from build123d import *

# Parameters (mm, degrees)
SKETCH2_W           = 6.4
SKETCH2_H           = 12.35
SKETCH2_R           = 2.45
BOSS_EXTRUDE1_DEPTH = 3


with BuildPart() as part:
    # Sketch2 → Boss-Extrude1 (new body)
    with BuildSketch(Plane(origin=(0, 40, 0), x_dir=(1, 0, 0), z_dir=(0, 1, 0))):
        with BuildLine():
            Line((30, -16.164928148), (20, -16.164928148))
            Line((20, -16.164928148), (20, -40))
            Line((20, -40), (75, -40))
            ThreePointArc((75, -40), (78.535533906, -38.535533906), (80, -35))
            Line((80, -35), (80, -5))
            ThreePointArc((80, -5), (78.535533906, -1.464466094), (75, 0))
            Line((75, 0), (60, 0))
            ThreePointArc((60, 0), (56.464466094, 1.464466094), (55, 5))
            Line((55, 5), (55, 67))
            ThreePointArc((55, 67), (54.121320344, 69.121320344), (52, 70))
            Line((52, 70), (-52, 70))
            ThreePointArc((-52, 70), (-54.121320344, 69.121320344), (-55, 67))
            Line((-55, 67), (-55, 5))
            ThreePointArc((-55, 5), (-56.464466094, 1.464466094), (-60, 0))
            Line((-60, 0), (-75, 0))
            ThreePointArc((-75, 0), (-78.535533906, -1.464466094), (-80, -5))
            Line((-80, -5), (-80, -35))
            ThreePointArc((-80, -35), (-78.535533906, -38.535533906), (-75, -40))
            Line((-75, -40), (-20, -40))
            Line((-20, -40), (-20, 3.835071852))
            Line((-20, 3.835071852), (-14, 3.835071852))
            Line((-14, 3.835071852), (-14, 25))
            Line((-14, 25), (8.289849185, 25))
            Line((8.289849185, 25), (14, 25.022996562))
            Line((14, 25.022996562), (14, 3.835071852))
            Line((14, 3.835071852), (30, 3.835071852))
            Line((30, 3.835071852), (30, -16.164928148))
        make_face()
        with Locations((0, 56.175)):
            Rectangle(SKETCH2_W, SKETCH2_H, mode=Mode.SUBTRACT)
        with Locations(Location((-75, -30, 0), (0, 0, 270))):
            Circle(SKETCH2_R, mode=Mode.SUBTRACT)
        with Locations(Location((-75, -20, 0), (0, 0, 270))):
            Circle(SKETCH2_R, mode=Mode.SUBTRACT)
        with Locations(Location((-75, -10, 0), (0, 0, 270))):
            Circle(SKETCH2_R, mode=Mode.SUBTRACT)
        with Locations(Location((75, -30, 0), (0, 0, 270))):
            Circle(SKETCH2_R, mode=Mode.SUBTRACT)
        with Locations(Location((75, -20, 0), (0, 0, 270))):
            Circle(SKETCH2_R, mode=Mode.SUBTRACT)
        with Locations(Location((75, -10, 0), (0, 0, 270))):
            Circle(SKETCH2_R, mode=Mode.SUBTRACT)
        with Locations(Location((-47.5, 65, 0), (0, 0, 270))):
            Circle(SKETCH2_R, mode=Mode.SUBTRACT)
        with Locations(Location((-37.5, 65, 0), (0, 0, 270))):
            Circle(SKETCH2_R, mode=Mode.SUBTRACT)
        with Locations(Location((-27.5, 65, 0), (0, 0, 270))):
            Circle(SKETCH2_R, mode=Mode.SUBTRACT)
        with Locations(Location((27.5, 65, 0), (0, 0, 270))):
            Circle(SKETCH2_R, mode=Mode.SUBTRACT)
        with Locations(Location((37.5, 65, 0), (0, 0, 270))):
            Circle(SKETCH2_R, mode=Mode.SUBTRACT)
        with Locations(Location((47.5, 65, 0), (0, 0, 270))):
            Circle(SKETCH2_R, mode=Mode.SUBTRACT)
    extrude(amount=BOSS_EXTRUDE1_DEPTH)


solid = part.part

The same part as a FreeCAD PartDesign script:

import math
import FreeCAD as App
import Part
import Sketcher

V = App.Vector


def add_polygon(sketch, points):
    """Adds a closed chain of lines whose ends are joined by coincident constraints."""
    first, n = sketch.GeometryCount, len(points)
    for a, b in zip(points, points[1:] + points[:1]):
        sketch.addGeometry(Part.LineSegment(App.Vector(*a, 0), App.Vector(*b, 0)), False)
    for i in range(n):
        sketch.addConstraint(Sketcher.Constraint("Coincident", first + i, 2, first + (i + 1) % n, 1))

doc = App.newDocument("Part")
body = doc.addObject("PartDesign::Body", "Body")

# Sketch on XZ plane
sketch1 = body.newObject("Sketcher::SketchObject", "Sketch")
sketch1.AttachmentSupport = (doc.getObject("XZ_Plane"), [""])
sketch1.MapMode = "FlatFace"
sketch1.AttachmentOffset = App.Placement(V(0, 0, -40), App.Rotation())
sketch1.addGeometry(Part.LineSegment(V(30, 16.164928, 0), V(20, 16.164928, 0)), False)  # 0
sketch1.addGeometry(Part.LineSegment(V(20, 16.164928, 0), V(20, 40, 0)), False)  # 1
sketch1.addGeometry(Part.LineSegment(V(20, 40, 0), V(75, 40, 0)), False)  # 2
sketch1.addGeometry(Part.ArcOfCircle(Part.Circle(V(75, 35, 0), V(0, 0, 1), 5), math.radians(0), math.radians(90)), False)  # 3
sketch1.addGeometry(Part.LineSegment(V(80, 35, 0), V(80, 5, 0)), False)  # 4
sketch1.addGeometry(Part.ArcOfCircle(Part.Circle(V(75, 5, 0), V(0, 0, 1), 5), math.radians(-90), math.radians(0)), False)  # 5
sketch1.addGeometry(Part.LineSegment(V(75, 0, 0), V(60, 0, 0)), False)  # 6
sketch1.addGeometry(Part.ArcOfCircle(Part.Circle(V(60, -5, 0), V(0, 0, 1), 5), math.radians(90), math.radians(180)), False)  # 7
sketch1.addGeometry(Part.LineSegment(V(55, -5, 0), V(55, -67, 0)), False)  # 8
sketch1.addGeometry(Part.ArcOfCircle(Part.Circle(V(52, -67, 0), V(0, 0, 1), 3), math.radians(-90), math.radians(0)), False)  # 9
sketch1.addGeometry(Part.LineSegment(V(52, -70, 0), V(-52, -70, 0)), False)  # 10
sketch1.addGeometry(Part.ArcOfCircle(Part.Circle(V(-52, -67, 0), V(0, 0, 1), 3), math.radians(180), math.radians(270)), False)  # 11
sketch1.addGeometry(Part.LineSegment(V(-55, -67, 0), V(-55, -5, 0)), False)  # 12
sketch1.addGeometry(Part.ArcOfCircle(Part.Circle(V(-60, -5, 0), V(0, 0, 1), 5), math.radians(0), math.radians(90)), False)  # 13
sketch1.addGeometry(Part.LineSegment(V(-60, 0, 0), V(-75, 0, 0)), False)  # 14
sketch1.addGeometry(Part.ArcOfCircle(Part.Circle(V(-75, 5, 0), V(0, 0, 1), 5), math.radians(180), math.radians(270)), False)  # 15
sketch1.addGeometry(Part.LineSegment(V(-80, 5, 0), V(-80, 35, 0)), False)  # 16
sketch1.addGeometry(Part.ArcOfCircle(Part.Circle(V(-75, 35, 0), V(0, 0, 1), 5), math.radians(90), math.radians(180)), False)  # 17
sketch1.addGeometry(Part.LineSegment(V(-75, 40, 0), V(-20, 40, 0)), False)  # 18
sketch1.addGeometry(Part.LineSegment(V(-20, 40, 0), V(-20, -3.835072, 0)), False)  # 19
sketch1.addGeometry(Part.LineSegment(V(-20, -3.835072, 0), V(-14, -3.835072, 0)), False)  # 20
sketch1.addGeometry(Part.LineSegment(V(-14, -3.835072, 0), V(-14, -25, 0)), False)  # 21
sketch1.addGeometry(Part.LineSegment(V(-14, -25, 0), V(8.289849, -25, 0)), False)  # 22
sketch1.addGeometry(Part.LineSegment(V(8.289849, -25, 0), V(14, -25.022997, 0)), False)  # 23
sketch1.addGeometry(Part.LineSegment(V(14, -25.022997, 0), V(14, -3.835072, 0)), False)  # 24
sketch1.addGeometry(Part.LineSegment(V(14, -3.835072, 0), V(30, -3.835072, 0)), False)  # 25
sketch1.addGeometry(Part.LineSegment(V(30, -3.835072, 0), V(30, 16.164928, 0)), False)  # 26
sketch1.addGeometry(Part.Circle(V(-75, 30, 0), V(0, 0, 1), 2.45), False)  # 27
sketch1.addGeometry(Part.Circle(V(-75, 20, 0), V(0, 0, 1), 2.45), False)  # 28
sketch1.addGeometry(Part.Circle(V(-75, 10, 0), V(0, 0, 1), 2.45), False)  # 29
sketch1.addGeometry(Part.Circle(V(75, 30, 0), V(0, 0, 1), 2.45), False)  # 30
sketch1.addGeometry(Part.Circle(V(75, 20, 0), V(0, 0, 1), 2.45), False)  # 31
sketch1.addGeometry(Part.Circle(V(75, 10, 0), V(0, 0, 1), 2.45), False)  # 32
sketch1.addGeometry(Part.Circle(V(-47.5, -65, 0), V(0, 0, 1), 2.45), False)  # 33
sketch1.addGeometry(Part.Circle(V(-37.5, -65, 0), V(0, 0, 1), 2.45), False)  # 34
sketch1.addGeometry(Part.Circle(V(-27.5, -65, 0), V(0, 0, 1), 2.45), False)  # 35
add_polygon(sketch1, [(3.2, -50), (-3.2, -50), (-3.2, -62.35), (3.2, -62.35)])  # lines 36-39
sketch1.addGeometry(Part.Circle(V(27.5, -65, 0), V(0, 0, 1), 2.45), False)  # 40
sketch1.addGeometry(Part.Circle(V(37.5, -65, 0), V(0, 0, 1), 2.45), False)  # 41
sketch1.addGeometry(Part.Circle(V(47.5, -65, 0), V(0, 0, 1), 2.45), False)  # 42
sketch1.addConstraint(Sketcher.Constraint("Coincident", 0, 2, 1, 1))
sketch1.addConstraint(Sketcher.Constraint("Coincident", 1, 2, 2, 1))
sketch1.addConstraint(Sketcher.Constraint("Tangent", 2, 2, 3, 2))
sketch1.addConstraint(Sketcher.Constraint("Tangent", 3, 1, 4, 1))
sketch1.addConstraint(Sketcher.Constraint("Tangent", 4, 2, 5, 2))
sketch1.addConstraint(Sketcher.Constraint("Tangent", 5, 1, 6, 1))
sketch1.addConstraint(Sketcher.Constraint("Tangent", 6, 2, 7, 1))
sketch1.addConstraint(Sketcher.Constraint("Tangent", 7, 2, 8, 1))
sketch1.addConstraint(Sketcher.Constraint("Tangent", 8, 2, 9, 2))
sketch1.addConstraint(Sketcher.Constraint("Tangent", 9, 1, 10, 1))
sketch1.addConstraint(Sketcher.Constraint("Tangent", 10, 2, 11, 2))
sketch1.addConstraint(Sketcher.Constraint("Tangent", 11, 1, 12, 1))
sketch1.addConstraint(Sketcher.Constraint("Tangent", 12, 2, 13, 1))
sketch1.addConstraint(Sketcher.Constraint("Tangent", 13, 2, 14, 1))
sketch1.addConstraint(Sketcher.Constraint("Tangent", 14, 2, 15, 2))
sketch1.addConstraint(Sketcher.Constraint("Tangent", 15, 1, 16, 1))
sketch1.addConstraint(Sketcher.Constraint("Tangent", 16, 2, 17, 2))
sketch1.addConstraint(Sketcher.Constraint("Tangent", 17, 1, 18, 1))
sketch1.addConstraint(Sketcher.Constraint("Coincident", 18, 2, 19, 1))
sketch1.addConstraint(Sketcher.Constraint("Coincident", 19, 2, 20, 1))
sketch1.addConstraint(Sketcher.Constraint("Coincident", 20, 2, 21, 1))
sketch1.addConstraint(Sketcher.Constraint("Coincident", 21, 2, 22, 1))
sketch1.addConstraint(Sketcher.Constraint("Coincident", 22, 2, 23, 1))
sketch1.addConstraint(Sketcher.Constraint("Coincident", 23, 2, 24, 1))
sketch1.addConstraint(Sketcher.Constraint("Coincident", 24, 2, 25, 1))
sketch1.addConstraint(Sketcher.Constraint("Coincident", 25, 2, 26, 1))
sketch1.addConstraint(Sketcher.Constraint("Coincident", 26, 2, 0, 1))
sketch1.addConstraint(Sketcher.Constraint("Horizontal", 0))
sketch1.addConstraint(Sketcher.Constraint("Vertical", 1))
sketch1.addConstraint(Sketcher.Constraint("Horizontal", 2))
sketch1.addConstraint(Sketcher.Constraint("Vertical", 4))
sketch1.addConstraint(Sketcher.Constraint("Horizontal", 6))
sketch1.addConstraint(Sketcher.Constraint("Vertical", 8))
sketch1.addConstraint(Sketcher.Constraint("Horizontal", 10))
sketch1.addConstraint(Sketcher.Constraint("Vertical", 12))
sketch1.addConstraint(Sketcher.Constraint("Horizontal", 14))
sketch1.addConstraint(Sketcher.Constraint("Vertical", 16))
sketch1.addConstraint(Sketcher.Constraint("Horizontal", 18))
sketch1.addConstraint(Sketcher.Constraint("Vertical", 19))
sketch1.addConstraint(Sketcher.Constraint("Horizontal", 20))
sketch1.addConstraint(Sketcher.Constraint("Vertical", 21))
sketch1.addConstraint(Sketcher.Constraint("Horizontal", 22))
sketch1.addConstraint(Sketcher.Constraint("Vertical", 24))
sketch1.addConstraint(Sketcher.Constraint("Horizontal", 25))
sketch1.addConstraint(Sketcher.Constraint("Vertical", 26))
sketch1.addConstraint(Sketcher.Constraint("Horizontal", 36))
sketch1.addConstraint(Sketcher.Constraint("Vertical", 37))
sketch1.addConstraint(Sketcher.Constraint("Horizontal", 38))
sketch1.addConstraint(Sketcher.Constraint("Vertical", 39))
sketch1.addConstraint(Sketcher.Constraint("Equal", 3, 5))
sketch1.addConstraint(Sketcher.Constraint("Equal", 5, 7))
sketch1.addConstraint(Sketcher.Constraint("Equal", 9, 11))
sketch1.addConstraint(Sketcher.Constraint("Equal", 7, 13))
sketch1.addConstraint(Sketcher.Constraint("Equal", 13, 15))
sketch1.addConstraint(Sketcher.Constraint("Equal", 15, 17))
sketch1.addConstraint(Sketcher.Constraint("Equal", 27, 28))
sketch1.addConstraint(Sketcher.Constraint("Equal", 28, 29))
sketch1.addConstraint(Sketcher.Constraint("Equal", 29, 30))
sketch1.addConstraint(Sketcher.Constraint("Equal", 30, 31))
sketch1.addConstraint(Sketcher.Constraint("Equal", 31, 32))
sketch1.addConstraint(Sketcher.Constraint("Equal", 32, 33))
sketch1.addConstraint(Sketcher.Constraint("Equal", 33, 34))
sketch1.addConstraint(Sketcher.Constraint("Equal", 34, 35))
sketch1.addConstraint(Sketcher.Constraint("Equal", 35, 40))
sketch1.addConstraint(Sketcher.Constraint("Equal", 40, 41))
sketch1.addConstraint(Sketcher.Constraint("Equal", 41, 42))
sketch1.addConstraint(Sketcher.Constraint("Symmetric", 6, 2, 13, 2, -1, 1))
sketch1.addConstraint(Sketcher.Constraint("Symmetric", 5, 3, 15, 3, -2))
sketch1.addConstraint(Sketcher.Constraint("Symmetric", 27, 3, 30, 3, -2))
sketch1.addConstraint(Sketcher.Constraint("Symmetric", 28, 3, 31, 3, -2))
sketch1.addConstraint(Sketcher.Constraint("Symmetric", 29, 3, 32, 3, -2))
sketch1.addConstraint(Sketcher.Constraint("Symmetric", 35, 3, 40, 3, -2))
sketch1.addConstraint(Sketcher.Constraint("Symmetric", 34, 3, 41, 3, -2))
sketch1.addConstraint(Sketcher.Constraint("Symmetric", 33, 3, 42, 3, -2))
sketch1.addConstraint(Sketcher.Constraint("Symmetric", 1, 2, 18, 2, -2))
sketch1.addConstraint(Sketcher.Constraint("Symmetric", 20, 2, 24, 2, -2))
sketch1.addConstraint(Sketcher.Constraint("Horizontal", 33, 3, 34, 3))
sketch1.addConstraint(Sketcher.Constraint("Horizontal", 34, 3, 35, 3))
sketch1.addConstraint(Sketcher.Constraint("Vertical", 17, 3, 27, 3))
sketch1.addConstraint(Sketcher.Constraint("Vertical", 27, 3, 28, 3))
sketch1.addConstraint(Sketcher.Constraint("Vertical", 28, 3, 29, 3))
sketch1.addConstraint(Sketcher.Constraint("Radius", 3, 5.0))
sketch1.addConstraint(Sketcher.Constraint("Radius", 9, 3.0))
sketch1.addConstraint(Sketcher.Constraint("Diameter", 27, 4.9))
sketch1.addConstraint(Sketcher.Constraint("DistanceX", 0, 2, 0, 1, 10.0))
sketch1.addConstraint(Sketcher.Constraint("DistanceX", 2, 1, 2, 2, 55.0))
sketch1.addConstraint(Sketcher.Constraint("DistanceX", 6, 2, 6, 1, 15.0))
sketch1.addConstraint(Sketcher.Constraint("DistanceX", 10, 2, 10, 1, 104.0))
sketch1.addConstraint(Sketcher.Constraint("DistanceX", 20, 1, 20, 2, 6.0))
sketch1.addConstraint(Sketcher.Constraint("DistanceY", 4, 2, 4, 1, 30.0))
sketch1.addConstraint(Sketcher.Constraint("DistanceY", 8, 2, 8, 1, 62.0))
sketch1.addConstraint(Sketcher.Constraint("DistanceY", 26, 1, 26, 2, 20.0))
sketch1.addConstraint(Sketcher.Constraint("DistanceX", 36, 2, 36, 1, 6.4))
sketch1.addConstraint(Sketcher.Constraint("DistanceY", -1, 1, 27, 3, 30.0))
sketch1.addConstraint(Sketcher.Constraint("DistanceY", -1, 1, 28, 3, 20.0))
sketch1.addConstraint(Sketcher.Constraint("DistanceY", -1, 1, 29, 3, 10.0))
sketch1.addConstraint(Sketcher.Constraint("DistanceY", 33, 3, -1, 1, 65.0))
sketch1.addConstraint(Sketcher.Constraint("DistanceY", 21, 2, -1, 1, 25.0))
sketch1.addConstraint(Sketcher.Constraint("DistanceY", 36, 2, -1, 1, 50.0))
sketch1.addConstraint(Sketcher.Constraint("DistanceX", 33, 3, 34, 3, 10.0))
sketch1.addConstraint(Sketcher.Constraint("DistanceX", 34, 3, 35, 3, 10.0))
sketch1.addConstraint(Sketcher.Constraint("DistanceX", 35, 3, 40, 3, 55.0))
sketch1.addConstraint(Sketcher.Constraint("DistanceY", 37, 2, 37, 1, 12.35))
sketch1.addConstraint(Sketcher.Constraint("DistanceX", 36, 2, -1, 1, 3.2))
sketch1.addConstraint(Sketcher.Constraint("DistanceX", 22, 1, 22, 2, 22.289849))
sketch1.addConstraint(Sketcher.Constraint("DistanceY", 1, 1, 1, 2, 23.835072))
sketch1.addConstraint(Sketcher.Constraint("DistanceY", 24, 1, 24, 2, 21.187925))
pad1 = body.newObject("PartDesign::Pad", "Pad")
pad1.Profile = sketch1
pad1.Length = 3
pad1.Reversed = True

doc.recompute()
